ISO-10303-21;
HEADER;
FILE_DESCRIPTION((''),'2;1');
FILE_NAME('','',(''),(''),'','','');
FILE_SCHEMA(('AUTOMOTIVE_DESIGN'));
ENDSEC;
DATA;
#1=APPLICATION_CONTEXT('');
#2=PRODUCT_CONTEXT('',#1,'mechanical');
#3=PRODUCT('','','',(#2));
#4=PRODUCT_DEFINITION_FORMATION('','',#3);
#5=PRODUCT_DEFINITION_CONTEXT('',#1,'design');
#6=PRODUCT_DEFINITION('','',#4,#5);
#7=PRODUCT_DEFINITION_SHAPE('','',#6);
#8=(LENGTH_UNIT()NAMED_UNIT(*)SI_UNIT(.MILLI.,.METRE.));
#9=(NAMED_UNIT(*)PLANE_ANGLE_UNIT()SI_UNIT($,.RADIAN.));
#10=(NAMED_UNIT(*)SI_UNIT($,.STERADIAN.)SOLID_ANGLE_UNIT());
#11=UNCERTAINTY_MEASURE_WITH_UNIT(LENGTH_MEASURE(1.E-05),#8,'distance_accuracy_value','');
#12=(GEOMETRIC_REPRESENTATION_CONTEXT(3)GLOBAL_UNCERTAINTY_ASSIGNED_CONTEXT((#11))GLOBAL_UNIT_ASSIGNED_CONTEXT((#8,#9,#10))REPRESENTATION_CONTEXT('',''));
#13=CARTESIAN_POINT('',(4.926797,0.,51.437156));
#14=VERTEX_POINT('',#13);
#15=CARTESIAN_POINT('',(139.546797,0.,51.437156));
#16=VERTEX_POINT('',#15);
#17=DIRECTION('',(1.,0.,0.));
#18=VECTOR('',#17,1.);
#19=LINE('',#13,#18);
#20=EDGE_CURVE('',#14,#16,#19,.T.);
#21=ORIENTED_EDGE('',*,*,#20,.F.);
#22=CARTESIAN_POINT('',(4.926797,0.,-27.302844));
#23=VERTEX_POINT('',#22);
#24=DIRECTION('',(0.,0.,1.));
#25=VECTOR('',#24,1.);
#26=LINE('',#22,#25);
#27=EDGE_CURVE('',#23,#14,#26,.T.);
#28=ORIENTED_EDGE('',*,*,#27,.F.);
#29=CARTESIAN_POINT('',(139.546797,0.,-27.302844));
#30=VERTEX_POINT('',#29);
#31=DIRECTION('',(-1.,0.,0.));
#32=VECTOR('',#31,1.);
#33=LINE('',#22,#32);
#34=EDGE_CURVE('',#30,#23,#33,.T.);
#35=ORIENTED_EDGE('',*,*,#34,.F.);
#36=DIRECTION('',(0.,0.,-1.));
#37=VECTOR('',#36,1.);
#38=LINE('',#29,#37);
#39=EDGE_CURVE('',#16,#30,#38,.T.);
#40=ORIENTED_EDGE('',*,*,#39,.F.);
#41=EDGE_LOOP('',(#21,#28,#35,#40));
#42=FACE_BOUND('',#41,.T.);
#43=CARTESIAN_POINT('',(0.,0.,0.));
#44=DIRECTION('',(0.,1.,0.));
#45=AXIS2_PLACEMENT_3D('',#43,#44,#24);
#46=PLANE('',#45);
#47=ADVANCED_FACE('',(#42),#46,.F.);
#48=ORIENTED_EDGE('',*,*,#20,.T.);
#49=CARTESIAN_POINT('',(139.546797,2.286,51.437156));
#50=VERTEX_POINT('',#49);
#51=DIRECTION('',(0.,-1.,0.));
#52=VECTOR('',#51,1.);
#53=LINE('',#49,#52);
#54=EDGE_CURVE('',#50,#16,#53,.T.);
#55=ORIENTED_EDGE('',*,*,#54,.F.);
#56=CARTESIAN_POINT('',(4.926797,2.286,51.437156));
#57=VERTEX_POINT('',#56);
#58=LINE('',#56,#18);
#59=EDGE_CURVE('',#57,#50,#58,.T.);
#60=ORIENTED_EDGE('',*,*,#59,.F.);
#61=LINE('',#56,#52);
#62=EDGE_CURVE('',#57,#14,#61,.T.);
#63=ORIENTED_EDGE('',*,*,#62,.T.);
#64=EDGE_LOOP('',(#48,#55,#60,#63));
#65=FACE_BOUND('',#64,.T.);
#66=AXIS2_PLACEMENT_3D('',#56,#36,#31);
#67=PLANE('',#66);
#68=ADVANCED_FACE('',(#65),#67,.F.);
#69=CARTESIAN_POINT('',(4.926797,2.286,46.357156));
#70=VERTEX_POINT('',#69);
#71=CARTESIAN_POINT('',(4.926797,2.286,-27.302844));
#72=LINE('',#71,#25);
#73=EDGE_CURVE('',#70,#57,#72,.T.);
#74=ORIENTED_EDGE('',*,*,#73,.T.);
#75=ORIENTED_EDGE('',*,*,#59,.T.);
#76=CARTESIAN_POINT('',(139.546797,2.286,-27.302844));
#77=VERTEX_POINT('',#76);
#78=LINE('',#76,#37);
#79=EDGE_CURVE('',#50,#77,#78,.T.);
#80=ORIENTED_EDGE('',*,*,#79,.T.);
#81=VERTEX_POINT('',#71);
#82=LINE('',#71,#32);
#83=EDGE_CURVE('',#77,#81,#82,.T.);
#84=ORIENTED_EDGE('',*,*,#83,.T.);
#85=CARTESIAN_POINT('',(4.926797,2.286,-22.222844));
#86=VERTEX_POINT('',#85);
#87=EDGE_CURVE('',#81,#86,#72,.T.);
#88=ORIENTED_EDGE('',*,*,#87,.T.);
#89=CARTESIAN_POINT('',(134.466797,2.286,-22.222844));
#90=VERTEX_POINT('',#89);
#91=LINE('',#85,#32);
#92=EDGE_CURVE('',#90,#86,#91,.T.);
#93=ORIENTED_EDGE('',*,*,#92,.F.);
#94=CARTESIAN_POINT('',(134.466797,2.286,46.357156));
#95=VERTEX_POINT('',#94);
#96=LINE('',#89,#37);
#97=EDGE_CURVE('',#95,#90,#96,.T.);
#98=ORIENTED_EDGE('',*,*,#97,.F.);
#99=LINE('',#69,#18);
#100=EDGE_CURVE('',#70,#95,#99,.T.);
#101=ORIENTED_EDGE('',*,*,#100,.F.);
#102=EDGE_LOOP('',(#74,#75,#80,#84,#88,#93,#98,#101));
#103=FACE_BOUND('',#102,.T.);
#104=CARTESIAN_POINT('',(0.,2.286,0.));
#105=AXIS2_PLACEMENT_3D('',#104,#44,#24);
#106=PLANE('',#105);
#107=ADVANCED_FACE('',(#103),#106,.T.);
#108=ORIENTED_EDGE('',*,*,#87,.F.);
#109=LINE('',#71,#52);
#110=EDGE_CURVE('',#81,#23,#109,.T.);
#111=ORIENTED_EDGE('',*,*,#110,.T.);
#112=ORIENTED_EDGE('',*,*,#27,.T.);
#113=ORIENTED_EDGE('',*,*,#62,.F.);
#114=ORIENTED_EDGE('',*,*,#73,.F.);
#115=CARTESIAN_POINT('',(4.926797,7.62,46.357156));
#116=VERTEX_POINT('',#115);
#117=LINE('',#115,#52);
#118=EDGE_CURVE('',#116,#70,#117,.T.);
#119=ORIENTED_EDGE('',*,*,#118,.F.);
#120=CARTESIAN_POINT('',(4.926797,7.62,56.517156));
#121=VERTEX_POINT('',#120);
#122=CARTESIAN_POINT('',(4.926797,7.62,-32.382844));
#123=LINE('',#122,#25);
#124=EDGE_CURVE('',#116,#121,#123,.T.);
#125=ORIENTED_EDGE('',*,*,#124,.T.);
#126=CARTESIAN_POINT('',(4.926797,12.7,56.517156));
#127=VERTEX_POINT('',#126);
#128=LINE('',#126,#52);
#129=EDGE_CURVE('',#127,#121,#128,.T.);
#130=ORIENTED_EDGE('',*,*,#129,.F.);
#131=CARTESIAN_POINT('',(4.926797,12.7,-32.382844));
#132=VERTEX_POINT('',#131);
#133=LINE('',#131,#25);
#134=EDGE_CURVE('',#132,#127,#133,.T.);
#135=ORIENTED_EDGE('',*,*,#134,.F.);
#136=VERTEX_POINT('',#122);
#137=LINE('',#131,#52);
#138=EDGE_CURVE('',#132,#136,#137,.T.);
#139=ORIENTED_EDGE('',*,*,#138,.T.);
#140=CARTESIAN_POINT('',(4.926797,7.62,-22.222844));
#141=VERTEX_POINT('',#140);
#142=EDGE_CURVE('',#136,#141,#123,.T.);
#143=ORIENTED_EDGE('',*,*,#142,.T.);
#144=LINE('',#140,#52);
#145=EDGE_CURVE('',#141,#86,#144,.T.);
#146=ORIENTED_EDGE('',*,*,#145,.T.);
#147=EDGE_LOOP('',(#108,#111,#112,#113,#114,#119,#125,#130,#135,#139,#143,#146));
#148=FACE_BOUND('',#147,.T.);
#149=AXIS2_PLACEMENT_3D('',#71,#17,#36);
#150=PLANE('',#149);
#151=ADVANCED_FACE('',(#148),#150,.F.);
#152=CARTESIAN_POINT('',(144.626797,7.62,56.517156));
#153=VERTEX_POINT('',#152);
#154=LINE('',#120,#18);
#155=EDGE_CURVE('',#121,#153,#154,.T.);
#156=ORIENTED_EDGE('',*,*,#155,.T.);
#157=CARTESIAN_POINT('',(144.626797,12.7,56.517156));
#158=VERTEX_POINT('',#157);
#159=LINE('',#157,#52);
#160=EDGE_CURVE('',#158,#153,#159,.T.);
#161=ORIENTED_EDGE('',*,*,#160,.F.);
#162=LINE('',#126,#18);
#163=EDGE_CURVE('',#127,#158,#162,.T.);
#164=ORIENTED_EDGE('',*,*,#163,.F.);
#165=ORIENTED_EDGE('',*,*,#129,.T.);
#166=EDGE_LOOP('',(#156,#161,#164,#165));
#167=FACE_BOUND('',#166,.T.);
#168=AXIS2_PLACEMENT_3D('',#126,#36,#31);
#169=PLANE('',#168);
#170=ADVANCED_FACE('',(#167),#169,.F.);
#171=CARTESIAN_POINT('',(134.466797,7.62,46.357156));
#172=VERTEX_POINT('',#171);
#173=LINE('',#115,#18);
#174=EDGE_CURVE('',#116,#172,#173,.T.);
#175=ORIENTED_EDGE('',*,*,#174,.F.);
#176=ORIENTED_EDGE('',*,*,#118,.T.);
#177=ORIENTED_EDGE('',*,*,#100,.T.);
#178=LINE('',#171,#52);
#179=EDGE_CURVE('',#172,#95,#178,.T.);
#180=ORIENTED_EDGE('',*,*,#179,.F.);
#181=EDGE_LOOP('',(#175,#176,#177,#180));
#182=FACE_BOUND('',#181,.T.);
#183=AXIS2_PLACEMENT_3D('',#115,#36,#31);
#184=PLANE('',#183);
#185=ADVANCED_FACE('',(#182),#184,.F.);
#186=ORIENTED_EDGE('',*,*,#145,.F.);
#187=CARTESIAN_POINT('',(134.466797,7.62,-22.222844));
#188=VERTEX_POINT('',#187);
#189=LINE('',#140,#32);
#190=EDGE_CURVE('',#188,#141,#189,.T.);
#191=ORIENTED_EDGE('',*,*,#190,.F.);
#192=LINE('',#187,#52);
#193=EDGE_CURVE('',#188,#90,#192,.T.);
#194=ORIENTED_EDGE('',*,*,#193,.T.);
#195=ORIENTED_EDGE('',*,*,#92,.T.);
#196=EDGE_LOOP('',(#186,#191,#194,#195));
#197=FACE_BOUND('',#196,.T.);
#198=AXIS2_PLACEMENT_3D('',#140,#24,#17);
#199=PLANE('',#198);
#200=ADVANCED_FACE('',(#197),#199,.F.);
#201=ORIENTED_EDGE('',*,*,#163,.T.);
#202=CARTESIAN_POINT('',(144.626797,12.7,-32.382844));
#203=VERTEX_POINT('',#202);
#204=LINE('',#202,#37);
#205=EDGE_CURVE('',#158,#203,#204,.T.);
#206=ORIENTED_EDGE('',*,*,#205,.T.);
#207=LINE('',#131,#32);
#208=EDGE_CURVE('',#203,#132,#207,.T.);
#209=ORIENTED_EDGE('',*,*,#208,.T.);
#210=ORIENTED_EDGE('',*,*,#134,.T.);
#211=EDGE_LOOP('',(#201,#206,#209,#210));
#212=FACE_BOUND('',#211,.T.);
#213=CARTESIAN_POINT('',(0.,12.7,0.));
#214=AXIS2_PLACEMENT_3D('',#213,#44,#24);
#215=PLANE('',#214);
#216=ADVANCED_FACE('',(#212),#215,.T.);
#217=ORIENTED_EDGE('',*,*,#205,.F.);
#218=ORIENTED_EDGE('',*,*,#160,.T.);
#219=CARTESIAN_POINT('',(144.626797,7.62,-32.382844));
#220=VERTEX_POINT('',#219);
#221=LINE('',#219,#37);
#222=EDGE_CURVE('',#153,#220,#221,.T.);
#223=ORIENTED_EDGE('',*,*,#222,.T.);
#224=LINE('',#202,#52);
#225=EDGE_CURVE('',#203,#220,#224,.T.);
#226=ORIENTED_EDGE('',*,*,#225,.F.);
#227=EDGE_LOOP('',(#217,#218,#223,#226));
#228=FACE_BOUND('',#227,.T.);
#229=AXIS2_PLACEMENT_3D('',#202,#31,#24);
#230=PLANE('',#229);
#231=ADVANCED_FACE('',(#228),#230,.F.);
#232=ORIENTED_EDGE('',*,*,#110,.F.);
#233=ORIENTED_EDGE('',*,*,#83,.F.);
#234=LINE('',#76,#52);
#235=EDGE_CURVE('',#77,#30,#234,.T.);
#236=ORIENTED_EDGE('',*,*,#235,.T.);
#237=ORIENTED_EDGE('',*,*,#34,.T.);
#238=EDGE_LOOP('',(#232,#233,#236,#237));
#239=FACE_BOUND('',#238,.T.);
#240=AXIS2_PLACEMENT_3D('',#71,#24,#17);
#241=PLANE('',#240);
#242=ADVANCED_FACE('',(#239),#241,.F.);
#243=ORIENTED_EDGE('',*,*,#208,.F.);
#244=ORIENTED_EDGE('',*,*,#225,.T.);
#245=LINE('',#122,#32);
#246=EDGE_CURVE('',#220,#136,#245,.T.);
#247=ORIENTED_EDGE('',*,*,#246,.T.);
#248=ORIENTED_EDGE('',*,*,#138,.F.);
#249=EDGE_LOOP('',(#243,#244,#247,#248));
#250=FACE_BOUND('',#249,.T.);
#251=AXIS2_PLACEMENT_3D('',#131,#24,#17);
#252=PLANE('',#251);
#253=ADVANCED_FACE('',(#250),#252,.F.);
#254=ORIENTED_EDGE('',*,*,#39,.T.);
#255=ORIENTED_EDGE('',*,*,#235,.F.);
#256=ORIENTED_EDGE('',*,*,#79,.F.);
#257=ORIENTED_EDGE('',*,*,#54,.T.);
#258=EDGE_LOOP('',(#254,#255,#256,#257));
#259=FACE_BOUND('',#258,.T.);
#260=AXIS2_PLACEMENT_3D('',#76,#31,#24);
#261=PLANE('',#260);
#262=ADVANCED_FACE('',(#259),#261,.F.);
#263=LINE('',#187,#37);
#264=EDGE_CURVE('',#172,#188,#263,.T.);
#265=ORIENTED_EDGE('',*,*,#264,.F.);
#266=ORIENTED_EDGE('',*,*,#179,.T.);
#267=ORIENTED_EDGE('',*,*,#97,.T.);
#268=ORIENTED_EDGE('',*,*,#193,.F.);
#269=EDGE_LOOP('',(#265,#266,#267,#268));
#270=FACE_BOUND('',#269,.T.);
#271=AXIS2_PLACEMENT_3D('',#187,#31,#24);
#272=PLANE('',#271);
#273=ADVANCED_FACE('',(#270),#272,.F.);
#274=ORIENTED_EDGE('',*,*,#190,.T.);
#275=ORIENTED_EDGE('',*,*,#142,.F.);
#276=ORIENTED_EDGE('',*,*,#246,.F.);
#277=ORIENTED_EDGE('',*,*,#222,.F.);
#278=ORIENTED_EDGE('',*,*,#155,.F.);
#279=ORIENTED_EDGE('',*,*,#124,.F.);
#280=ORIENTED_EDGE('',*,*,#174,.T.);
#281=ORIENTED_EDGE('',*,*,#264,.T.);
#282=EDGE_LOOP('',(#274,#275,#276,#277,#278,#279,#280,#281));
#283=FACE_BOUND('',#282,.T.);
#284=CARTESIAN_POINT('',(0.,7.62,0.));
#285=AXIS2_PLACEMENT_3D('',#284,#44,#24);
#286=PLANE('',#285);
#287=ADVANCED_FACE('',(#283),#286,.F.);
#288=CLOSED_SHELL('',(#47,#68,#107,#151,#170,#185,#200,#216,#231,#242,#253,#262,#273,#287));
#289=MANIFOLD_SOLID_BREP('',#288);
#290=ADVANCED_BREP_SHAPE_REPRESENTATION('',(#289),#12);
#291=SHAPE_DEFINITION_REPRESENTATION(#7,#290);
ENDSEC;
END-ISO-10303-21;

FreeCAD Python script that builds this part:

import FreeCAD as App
import Part
import Sketcher
from FreeCAD import Vector
Q = App.Units.Quantity

doc = App.newDocument("Part")
body = doc.addObject("PartDesign::Body", "Body")

# Sketch on XZ plane
sketch1 = body.newObject("Sketcher::SketchObject", "Sketch")
sketch1.AttachmentSupport = (doc.getObject("XZ_Plane"), [""])
sketch1.MapMode = "FlatFace"
sketch1.addGeometry([
    Part.LineSegment(Vector(4.926797, -27.302844, 0), Vector(4.926797, 51.437156, 0)),
    Part.LineSegment(Vector(4.926797, 51.437156, 0), Vector(139.546797, 51.437156, 0)),
    Part.LineSegment(Vector(139.546797, 51.437156, 0), Vector(139.546797, -27.302844, 0)),
    Part.LineSegment(Vector(139.546797, -27.302844, 0), Vector(4.926797, -27.302844, 0)),
], False)
sketch1.addConstraint([
    Sketcher.Constraint("Coincident", 0, 2, 1, 1),
    Sketcher.Constraint("Coincident", 1, 2, 2, 1),
    Sketcher.Constraint("Coincident", 2, 2, 3, 1),
    Sketcher.Constraint("Coincident", 3, 2, 0, 1),
    Sketcher.Constraint("Vertical", 0),
    Sketcher.Constraint("Horizontal", 1),
    Sketcher.Constraint("Vertical", 2),
    Sketcher.Constraint("Horizontal", 3),
    Sketcher.Constraint("DistanceX", 1, 1, 1, 2, Q("5.3 in")),
    Sketcher.Constraint("DistanceY", 0, 1, 0, 2, Q("3.1 in")),
    Sketcher.Constraint("DistanceX", -1, 1, 0, 2, 4.926797),
    Sketcher.Constraint("DistanceY", -1, 1, 0, 2, 51.437156),
])
pad1 = body.newObject("PartDesign::Pad", "Pad")
pad1.Profile = sketch1
pad1.Length = Q("0.09 in")
pad1.Reversed = True

# Sketch on XZ plane
sketch2 = body.newObject("Sketcher::SketchObject", "Sketch001")
sketch2.AttachmentSupport = (doc.getObject("XZ_Plane"), [""])
sketch2.MapMode = "FlatFace"
sketch2.AttachmentOffset = App.Placement(Vector(0, 0, -0.09 * 25.4), App.Rotation())
sketch2.addGeometry([
    Part.LineSegment(Vector(4.926797, -22.222844, 0), Vector(4.926797, 46.357156, 0)),
    Part.LineSegment(Vector(4.926797, 46.357156, 0), Vector(134.466797, 46.357156, 0)),
    Part.LineSegment(Vector(134.466797, 46.357156, 0), Vector(134.466797, -22.222844, 0)),
    Part.LineSegment(Vector(134.466797, -22.222844, 0), Vector(4.926797, -22.222844, 0)),
], False)
sketch2.addConstraint([
    Sketcher.Constraint("Coincident", 0, 2, 1, 1),
    Sketcher.Constraint("Coincident", 1, 2, 2, 1),
    Sketcher.Constraint("Coincident", 2, 2, 3, 1),
    Sketcher.Constraint("Coincident", 3, 2, 0, 1),
    Sketcher.Constraint("Vertical", 0),
    Sketcher.Constraint("Horizontal", 1),
    Sketcher.Constraint("Vertical", 2),
    Sketcher.Constraint("Horizontal", 3),
    Sketcher.Constraint("DistanceX", 1, 1, 1, 2, Q("5.1 in")),
    Sketcher.Constraint("DistanceY", 0, 1, 0, 2, Q("2.7 in")),
    Sketcher.Constraint("DistanceX", -1, 1, 0, 2, 4.926797),
    Sketcher.Constraint("DistanceY", -1, 1, 0, 2, 46.357156),
])
pad2 = body.newObject("PartDesign::Pad", "Pad001")
pad2.Profile = sketch2
pad2.Length = Q("0.21 in")
pad2.Reversed = True

# Sketch on XZ plane
sketch3 = body.newObject("Sketcher::SketchObject", "Sketch002")
sketch3.AttachmentSupport = (doc.getObject("XZ_Plane"), [""])
sketch3.MapMode = "FlatFace"
sketch3.AttachmentOffset = App.Placement(Vector(0, 0, -0.3 * 25.4), App.Rotation())
sketch3.addGeometry([
    Part.LineSegment(Vector(4.926797, -32.382844, 0), Vector(4.926797, 56.517156, 0)),
    Part.LineSegment(Vector(4.926797, 56.517156, 0), Vector(144.626797, 56.517156, 0)),
    Part.LineSegment(Vector(144.626797, 56.517156, 0), Vector(144.626797, -32.382844, 0)),
    Part.LineSegment(Vector(144.626797, -32.382844, 0), Vector(4.926797, -32.382844, 0)),
], False)
sketch3.addConstraint([
    Sketcher.Constraint("Coincident", 0, 2, 1, 1),
    Sketcher.Constraint("Coincident", 1, 2, 2, 1),
    Sketcher.Constraint("Coincident", 2, 2, 3, 1),
    Sketcher.Constraint("Coincident", 3, 2, 0, 1),
    Sketcher.Constraint("Vertical", 0),
    Sketcher.Constraint("Horizontal", 1),
    Sketcher.Constraint("Vertical", 2),
    Sketcher.Constraint("Horizontal", 3),
    Sketcher.Constraint("DistanceX", 1, 1, 1, 2, Q("5.5 in")),
    Sketcher.Constraint("DistanceY", 0, 1, 0, 2, Q("3.5 in")),
    Sketcher.Constraint("DistanceX", -1, 1, 0, 2, 4.926797),
    Sketcher.Constraint("DistanceY", -1, 1, 0, 2, 56.517156),
])
pad3 = body.newObject("PartDesign::Pad", "Pad002")
pad3.Profile = sketch3
pad3.Length = Q("0.2 in")
pad3.Reversed = True

doc.recompute()
